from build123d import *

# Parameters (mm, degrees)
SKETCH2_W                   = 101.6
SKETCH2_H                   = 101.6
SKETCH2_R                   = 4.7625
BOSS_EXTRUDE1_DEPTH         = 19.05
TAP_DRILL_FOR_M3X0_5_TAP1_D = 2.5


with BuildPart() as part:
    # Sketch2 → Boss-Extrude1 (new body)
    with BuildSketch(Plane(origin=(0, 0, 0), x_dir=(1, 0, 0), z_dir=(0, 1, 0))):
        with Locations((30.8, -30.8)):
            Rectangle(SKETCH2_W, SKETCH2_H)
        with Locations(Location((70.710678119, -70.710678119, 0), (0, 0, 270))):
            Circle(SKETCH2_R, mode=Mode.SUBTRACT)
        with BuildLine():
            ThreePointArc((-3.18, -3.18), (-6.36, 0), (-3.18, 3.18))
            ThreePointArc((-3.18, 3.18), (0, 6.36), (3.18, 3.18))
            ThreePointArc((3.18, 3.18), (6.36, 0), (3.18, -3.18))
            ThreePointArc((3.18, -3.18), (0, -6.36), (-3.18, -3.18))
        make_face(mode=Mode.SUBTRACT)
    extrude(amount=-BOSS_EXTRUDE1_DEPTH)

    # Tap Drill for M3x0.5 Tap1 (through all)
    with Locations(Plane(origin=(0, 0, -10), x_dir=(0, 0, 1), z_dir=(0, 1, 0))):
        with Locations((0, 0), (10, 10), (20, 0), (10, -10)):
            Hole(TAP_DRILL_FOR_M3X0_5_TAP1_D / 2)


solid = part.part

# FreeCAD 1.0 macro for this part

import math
import FreeCAD as App
import Part
import Sketcher
from FreeCAD import Vector
Q = App.Units.Quantity


def add_polygon(sketch, points):
    """Adds a closed chain of lines whose ends are joined by coincident constraints."""
    first, n = sketch.GeometryCount, len(points)
    for a, b in zip(points, points[1:] + points[:1]):
        sketch.addGeometry(Part.LineSegment(App.Vector(*a, 0), App.Vector(*b, 0)), False)
    for i in range(n):
        sketch.addConstraint(Sketcher.Constraint("Coincident", first + i, 2, first + (i + 1) % n, 1))

doc = App.newDocument("Part")
body = doc.addObject("PartDesign::Body", "Body")

# Sketch on XZ plane
sketch1 = doc.addObject("Sketcher::SketchObject", "Sketch")
body.addObject(sketch1)
sketch1.AttachmentSupport = (doc.XZ_Plane, [""])
sketch1.MapMode = "FlatFace"
add_polygon(sketch1, [(-20, -20), (-20, 81.6), (81.6, 81.6), (81.6, -20)])  # lines 0-3
sketch1.addGeometry(Part.Circle(Vector(70.7, 70.7, 0), Vector(0, 0, 1), 4.8), False)  # 4
sketch1.addGeometry(Part.ArcOfCircle(Part.Circle(Vector(0, 3.2, 0), Vector(0, 0, 1), 3.2), math.radians(0), math.radians(180)), False)  # 5
sketch1.addGeometry(Part.ArcOfCircle(Part.Circle(Vector(-3.2, 0, 0), Vector(0, 0, 1), 3.2), math.radians(90), math.radians(270)), False)  # 6
sketch1.addGeometry(Part.ArcOfCircle(Part.Circle(Vector(0, -3.2, 0), Vector(0, 0, 1), 3.2), math.radians(180), math.radians(360)), False)  # 7
sketch1.addGeometry(Part.ArcOfCircle(Part.Circle(Vector(3.2, 0, 0), Vector(0, 0, 1), 3.2), math.radians(-90), math.radians(90)), False)  # 8
sketch1.addConstraint(Sketcher.Constraint("Coincident", 5, 2, 6, 1))
sketch1.addConstraint(Sketcher.Constraint("Coincident", 6, 2, 7, 1))
sketch1.addConstraint(Sketcher.Constraint("Coincident", 7, 2, 8, 1))
sketch1.addConstraint(Sketcher.Constraint("Coincident", 8, 2, 5, 1))
sketch1.addConstraint(Sketcher.Constraint("Vertical", 0))
sketch1.addConstraint(Sketcher.Constraint("Horizontal", 1))
sketch1.addConstraint(Sketcher.Constraint("Vertical", 2))
sketch1.addConstraint(Sketcher.Constraint("Horizontal", 3))
sketch1.addConstraint(Sketcher.Constraint("Equal", 5, 6))
sketch1.addConstraint(Sketcher.Constraint("Equal", 6, 7))
sketch1.addConstraint(Sketcher.Constraint("Equal", 7, 8))
sketch1.addConstraint(Sketcher.Constraint("Symmetric", 5, 3, 7, 3, -1, 1))
sketch1.addConstraint(Sketcher.Constraint("Symmetric", 6, 3, 8, 3, -1, 1))
sketch1.addConstraint(Sketcher.Constraint("Symmetric", 6, 2, 7, 2, -2))
sketch1.addConstraint(Sketcher.Constraint("Horizontal", 7, 3, 6, 2))
sketch1.addConstraint(Sketcher.Constraint("Vertical", 6, 3, 5, 2))
sketch1.addConstraint(Sketcher.Constraint("Equal", 3, 0))
sketch1.addConstraint(Sketcher.Constraint("DistanceX", 1, 1, 1, 2, Q("4 in")))
sketch1.addConstraint(Sketcher.Constraint("Diameter", 4, Q("0.375 in")))
sketch1.addConstraint(Sketcher.Constraint("Radius", 5, 3.18))
sketch1.addConstraint(Sketcher.Constraint("DistanceX", 0, 2, -1, 1, 20.0))
sketch1.addConstraint(Sketcher.Constraint("DistanceY", -1, 1, 0, 2, 81.6))
sketch1.addConstraint(Sketcher.Constraint("DistanceX", -1, 1, 4, 3, 70.710678))
sketch1.addConstraint(Sketcher.Constraint("DistanceY", -1, 1, 4, 3, 70.710678))
pad1 = doc.addObject("PartDesign::Pad", "Pad")
body.addObject(pad1)
pad1.Profile = sketch1
pad1.Length = Q("0.75 in")

# Sketch on XZ plane
sketch2 = doc.addObject("Sketcher::SketchObject", "Sketch001")
body.addObject(sketch2)
sketch2.AttachmentSupport = (doc.XZ_Plane, [""])
sketch2.MapMode = "FlatFace"
sketch2.addGeometry(Part.Circle(Vector(0, -10, 0), Vector(0, 0, 1), 1.2), False)
sketch2.addGeometry(Part.Circle(Vector(10, 0, 0), Vector(0, 0, 1), 1.2), False)
sketch2.addGeometry(Part.Circle(Vector(0, 10, 0), Vector(0, 0, 1), 1.2), False)
sketch2.addGeometry(Part.Circle(Vector(-10, 0, 0), Vector(0, 0, 1), 1.2), False)
sketch2.addConstraint(Sketcher.Constraint("Equal", 0, 1))
sketch2.addConstraint(Sketcher.Constraint("Equal", 1, 2))
sketch2.addConstraint(Sketcher.Constraint("Equal", 2, 3))
sketch2.addConstraint(Sketcher.Constraint("Symmetric", 0, 3, 2, 3, -1, 1))
sketch2.addConstraint(Sketcher.Constraint("Symmetric", 1, 3, 3, 3, -1, 1))
sketch2.addConstraint(Sketcher.Constraint("PointOnObject", 0, 3, -2))
sketch2.addConstraint(Sketcher.Constraint("PointOnObject", 1, 3, -1))
sketch2.addConstraint(Sketcher.Constraint("Diameter", 0, 2.5))
sketch2.addConstraint(Sketcher.Constraint("DistanceY", 0, 3, -1, 1, 10.0))
sketch2.addConstraint(Sketcher.Constraint("DistanceX", -1, 1, 1, 3, 10.0))
doc.recompute()
hole = doc.addObject("PartDesign::Hole", "Hole")
body.addObject(hole)
hole.Profile = sketch2
hole.ThreadType = "None"
hole.Diameter = 2.5
hole.DepthType = "ThroughAll"
hole.Reversed = True

doc.recompute()
